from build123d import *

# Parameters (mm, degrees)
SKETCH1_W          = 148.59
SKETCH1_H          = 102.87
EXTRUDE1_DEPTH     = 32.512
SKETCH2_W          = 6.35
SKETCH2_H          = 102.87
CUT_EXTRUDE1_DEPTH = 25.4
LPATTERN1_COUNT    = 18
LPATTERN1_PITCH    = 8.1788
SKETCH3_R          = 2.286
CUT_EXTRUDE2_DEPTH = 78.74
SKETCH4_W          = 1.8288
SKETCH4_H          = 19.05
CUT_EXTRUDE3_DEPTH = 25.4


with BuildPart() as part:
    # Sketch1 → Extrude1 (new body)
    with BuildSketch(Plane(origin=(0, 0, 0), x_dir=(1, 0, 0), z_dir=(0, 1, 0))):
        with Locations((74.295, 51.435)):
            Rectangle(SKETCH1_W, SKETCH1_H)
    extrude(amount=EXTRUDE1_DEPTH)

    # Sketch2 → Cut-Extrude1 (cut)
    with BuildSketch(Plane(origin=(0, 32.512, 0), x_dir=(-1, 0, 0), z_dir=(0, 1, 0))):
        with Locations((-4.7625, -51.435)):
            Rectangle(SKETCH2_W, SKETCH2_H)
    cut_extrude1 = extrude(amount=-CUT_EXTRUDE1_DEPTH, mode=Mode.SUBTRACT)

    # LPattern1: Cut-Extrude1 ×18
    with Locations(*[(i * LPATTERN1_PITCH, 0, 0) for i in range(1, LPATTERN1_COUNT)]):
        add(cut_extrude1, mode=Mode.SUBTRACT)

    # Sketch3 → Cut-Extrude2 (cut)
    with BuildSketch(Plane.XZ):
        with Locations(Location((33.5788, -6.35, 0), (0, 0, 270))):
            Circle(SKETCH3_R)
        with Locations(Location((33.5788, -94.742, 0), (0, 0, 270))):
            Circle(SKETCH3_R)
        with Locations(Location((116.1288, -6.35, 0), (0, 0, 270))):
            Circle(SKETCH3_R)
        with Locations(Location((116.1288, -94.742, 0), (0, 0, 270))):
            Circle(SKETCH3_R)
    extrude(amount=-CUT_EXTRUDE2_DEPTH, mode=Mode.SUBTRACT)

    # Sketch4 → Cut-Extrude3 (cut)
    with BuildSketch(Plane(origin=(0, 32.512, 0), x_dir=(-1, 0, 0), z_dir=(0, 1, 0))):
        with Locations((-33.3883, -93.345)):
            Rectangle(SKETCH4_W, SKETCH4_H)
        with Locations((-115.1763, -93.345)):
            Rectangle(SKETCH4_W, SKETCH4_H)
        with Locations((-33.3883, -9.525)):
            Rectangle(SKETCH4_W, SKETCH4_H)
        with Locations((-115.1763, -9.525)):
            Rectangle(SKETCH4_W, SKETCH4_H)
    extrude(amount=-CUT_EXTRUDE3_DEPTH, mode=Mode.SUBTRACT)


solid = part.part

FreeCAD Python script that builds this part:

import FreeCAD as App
import Part
import Sketcher

V = App.Vector
Q = App.Units.Quantity

doc = App.newDocument("Part")
params = doc.addObject("Spreadsheet::Sheet", "Params")
for row, (alias, value) in enumerate([
    ("sketch1_width", "5.85 in"),
    ("sketch1_height", "4.05 in"),
    ("pad1_length", "1.28 in"),
    ("sketch2_width", "0.25 in"),
    ("sketch2_height", "4.05 in"),
    ("pocket1_length", "1 in"),
    ("linearpattern_pitch", "0.322 in"),
    ("sketch3_diameter", "0.18 in"),
    ("pocket2_length", "3.1 in"),
    ("sketch4_height", "0.75 in"),
    ("sketch4_width", "0.072 in"),
    ("pocket3_length", "1 in"),
], start=1):
    params.set(f"A{row}", alias)
    params.set(f"B{row}", "=" + value)
    params.setAlias(f"B{row}", alias)

body = doc.addObject("PartDesign::Body", "Body")

sketch1 = doc.addObject("Sketcher::SketchObject", "Sketch")
body.addObject(sketch1)
sketch1.AttachmentSupport = (doc.XZ_Plane, [""])
sketch1.MapMode = "FlatFace"
sketch1.addGeometry(Part.LineSegment(V(0, -103, 0), V(0, 0, 0)), False)
sketch1.addGeometry(Part.LineSegment(V(0, 0, 0), V(149, 0, 0)), False)
sketch1.addGeometry(Part.LineSegment(V(149, 0, 0), V(149, -103, 0)), False)
sketch1.addGeometry(Part.LineSegment(V(149, -103, 0), V(0, -103, 0)), False)
sketch1.addConstraint(Sketcher.Constraint("Coincident", 0, 2, 1, 1))
sketch1.addConstraint(Sketcher.Constraint("Coincident", 1, 2, 2, 1))
sketch1.addConstraint(Sketcher.Constraint("Coincident", 2, 2, 3, 1))
sketch1.addConstraint(Sketcher.Constraint("Coincident", 3, 2, 0, 1))
sketch1.addConstraint(Sketcher.Constraint("Vertical", 0))
sketch1.addConstraint(Sketcher.Constraint("Horizontal", 1))
sketch1.addConstraint(Sketcher.Constraint("Vertical", 2))
sketch1.addConstraint(Sketcher.Constraint("Horizontal", 3))
sketch1.addConstraint(Sketcher.Constraint("Coincident", 0, 2, -1, 1))
sketch1.addConstraint(Sketcher.Constraint("DistanceX", 1, 1, 1, 2, Q("5.85 in")))
sketch1.addConstraint(Sketcher.Constraint("DistanceY", 0, 1, 0, 2, Q("4.05 in")))
sketch1.setExpression("Constraints[9]", "Params.sketch1_width")
sketch1.setExpression("Constraints[10]", "Params.sketch1_height")
pad1 = doc.addObject("PartDesign::Pad", "Pad")
body.addObject(pad1)
pad1.Profile = sketch1
pad1.setExpression("Length", "Params.pad1_length")
pad1.Reversed = True

sketch2 = doc.addObject("Sketcher::SketchObject", "Sketch001")
body.addObject(sketch2)
sketch2.AttachmentSupport = (doc.XZ_Plane, [""])
sketch2.MapMode = "FlatFace"
sketch2.AttachmentOffset = App.Placement(V(0, 0, -1.28 * 25.4), App.Rotation())
sketch2.addGeometry(Part.LineSegment(V(8, 0, 0), V(8, -103, 0)), False)
sketch2.addGeometry(Part.LineSegment(V(8, -103, 0), V(2, -103, 0)), False)
sketch2.addGeometry(Part.LineSegment(V(2, -103, 0), V(2, 0, 0)), False)
sketch2.addGeometry(Part.LineSegment(V(2, 0, 0), V(8, 0, 0)), False)
sketch2.addConstraint(Sketcher.Constraint("Coincident", 0, 2, 1, 1))
sketch2.addConstraint(Sketcher.Constraint("Coincident", 1, 2, 2, 1))
sketch2.addConstraint(Sketcher.Constraint("Coincident", 2, 2, 3, 1))
sketch2.addConstraint(Sketcher.Constraint("Coincident", 3, 2, 0, 1))
sketch2.addConstraint(Sketcher.Constraint("Vertical", 0))
sketch2.addConstraint(Sketcher.Constraint("Horizontal", 1))
sketch2.addConstraint(Sketcher.Constraint("Vertical", 2))
sketch2.addConstraint(Sketcher.Constraint("Horizontal", 3))
sketch2.addConstraint(Sketcher.Constraint("PointOnObject", 2, 2, -1))
sketch2.addConstraint(Sketcher.Constraint("DistanceX", 1, 2, 1, 1, Q("0.25 in")))
sketch2.addConstraint(Sketcher.Constraint("DistanceY", 0, 2, 0, 1, Q("4.05 in")))
sketch2.addConstraint(Sketcher.Constraint("DistanceX", -1, 1, 0, 2, Q("0.3125 in")))
sketch2.setExpression("Constraints[9]", "Params.sketch2_width")
sketch2.setExpression("Constraints[10]", "Params.sketch2_height")
pocket1 = doc.addObject("PartDesign::Pocket", "Pocket")
body.addObject(pocket1)
pocket1.Profile = sketch2
pocket1.setExpression("Length", "Params.pocket1_length")
pocket1.Reversed = True
doc.recompute()

linearpattern = doc.addObject("PartDesign::LinearPattern", "LinearPattern")
body.addObject(linearpattern)
linearpattern.Originals = [pocket1]
linearpattern.Direction = (doc.X_Axis, [""])
linearpattern.Mode = "offset"
linearpattern.setExpression("Offset", "Params.linearpattern_pitch")
linearpattern.Occurrences = 18
body.Tip = linearpattern

sketch3 = doc.addObject("Sketcher::SketchObject", "Sketch002")
body.addObject(sketch3)
sketch3.AttachmentSupport = (doc.XZ_Plane, [""])
sketch3.MapMode = "FlatFace"
sketch3.addGeometry(Part.Circle(V(33.6, -6.3, 0), V(0, 0, 1), 2.3), False)
sketch3.addGeometry(Part.Circle(V(33.6, -94.7, 0), V(0, 0, 1), 2.3), False)
sketch3.addGeometry(Part.Circle(V(116.1, -6.3, 0), V(0, 0, 1), 2.3), False)
sketch3.addGeometry(Part.Circle(V(116.1, -94.7, 0), V(0, 0, 1), 2.3), False)
sketch3.addConstraint(Sketcher.Constraint("Equal", 0, 1))
sketch3.addConstraint(Sketcher.Constraint("Equal", 1, 2))
sketch3.addConstraint(Sketcher.Constraint("Equal", 2, 3))
sketch3.addConstraint(Sketcher.Constraint("Horizontal", 0, 3, 2, 3))
sketch3.addConstraint(Sketcher.Constraint("Horizontal", 1, 3, 3, 3))
sketch3.addConstraint(Sketcher.Constraint("Vertical", 0, 3, 1, 3))
sketch3.addConstraint(Sketcher.Constraint("Vertical", 2, 3, 3, 3))
sketch3.addConstraint(Sketcher.Constraint("Diameter", 0, Q("0.18 in")))
sketch3.addConstraint(Sketcher.Constraint("DistanceY", 0, 3, -1, 1, Q("0.25 in")))
sketch3.addConstraint(Sketcher.Constraint("DistanceY", 1, 3, -1, 1, Q("3.73 in")))
sketch3.addConstraint(Sketcher.Constraint("DistanceX", 0, 3, 2, 3, Q("3.25 in")))
sketch3.addConstraint(Sketcher.Constraint("DistanceX", -1, 1, 0, 3, Q("1.322 in")))
sketch3.setExpression("Constraints[7]", "Params.sketch3_diameter")
pocket2 = doc.addObject("PartDesign::Pocket", "Pocket001")
body.addObject(pocket2)
pocket2.Profile = sketch3
pocket2.setExpression("Length", "Params.pocket2_length")

sketch4 = doc.addObject("Sketcher::SketchObject", "Sketch003")
body.addObject(sketch4)
sketch4.AttachmentSupport = (doc.XZ_Plane, [""])
sketch4.MapMode = "FlatFace"
sketch4.AttachmentOffset = App.Placement(V(0, 0, -1.28 * 25.4), App.Rotation())
sketch4.addGeometry(Part.LineSegment(V(34.3, -83.8, 0), V(34.3, -102.9, 0)), False)
sketch4.addGeometry(Part.LineSegment(V(34.3, -102.9, 0), V(32.5, -102.9, 0)), False)
sketch4.addGeometry(Part.LineSegment(V(32.5, -102.9, 0), V(32.5, -83.8, 0)), False)
sketch4.addGeometry(Part.LineSegment(V(32.5, -83.8, 0), V(34.3, -83.8, 0)), False)
sketch4.addGeometry(Part.LineSegment(V(116.1, -83.8, 0), V(116.1, -102.9, 0)), False)
sketch4.addGeometry(Part.LineSegment(V(116.1, -102.9, 0), V(114.3, -102.9, 0)), False)
sketch4.addGeometry(Part.LineSegment(V(114.3, -102.9, 0), V(114.3, -83.8, 0)), False)
sketch4.addGeometry(Part.LineSegment(V(114.3, -83.8, 0), V(116.1, -83.8, 0)), False)
sketch4.addGeometry(Part.LineSegment(V(34.3, 0, 0), V(34.3, -19.1, 0)), False)
sketch4.addGeometry(Part.LineSegment(V(34.3, -19.1, 0), V(32.5, -19.1, 0)), False)
sketch4.addGeometry(Part.LineSegment(V(32.5, -19.1, 0), V(32.5, 0, 0)), False)
sketch4.addGeometry(Part.LineSegment(V(32.5, 0, 0), V(34.3, 0, 0)), False)
sketch4.addGeometry(Part.LineSegment(V(116.1, 0, 0), V(116.1, -19.1, 0)), False)
sketch4.addGeometry(Part.LineSegment(V(116.1, -19.1, 0), V(114.3, -19.1, 0)), False)
sketch4.addGeometry(Part.LineSegment(V(114.3, -19.1, 0), V(114.3, 0, 0)), False)
sketch4.addGeometry(Part.LineSegment(V(114.3, 0, 0), V(116.1, 0, 0)), False)
sketch4.addConstraint(Sketcher.Constraint("Coincident", 0, 2, 1, 1))
sketch4.addConstraint(Sketcher.Constraint("Coincident", 1, 2, 2, 1))
sketch4.addConstraint(Sketcher.Constraint("Coincident", 2, 2, 3, 1))
sketch4.addConstraint(Sketcher.Constraint("Coincident", 3, 2, 0, 1))
sketch4.addConstraint(Sketcher.Constraint("Coincident", 4, 2, 5, 1))
sketch4.addConstraint(Sketcher.Constraint("Coincident", 5, 2, 6, 1))
sketch4.addConstraint(Sketcher.Constraint("Coincident", 6, 2, 7, 1))
sketch4.addConstraint(Sketcher.Constraint("Coincident", 7, 2, 4, 1))
sketch4.addConstraint(Sketcher.Constraint("Coincident", 8, 2, 9, 1))
sketch4.addConstraint(Sketcher.Constraint("Coincident", 9, 2, 10, 1))
sketch4.addConstraint(Sketcher.Constraint("Coincident", 10, 2, 11, 1))
sketch4.addConstraint(Sketcher.Constraint("Coincident", 11, 2, 8, 1))
sketch4.addConstraint(Sketcher.Constraint("Coincident", 12, 2, 13, 1))
sketch4.addConstraint(Sketcher.Constraint("Coincident", 13, 2, 14, 1))
sketch4.addConstraint(Sketcher.Constraint("Coincident", 14, 2, 15, 1))
sketch4.addConstraint(Sketcher.Constraint("Coincident", 15, 2, 12, 1))
sketch4.addConstraint(Sketcher.Constraint("Vertical", 0))
sketch4.addConstraint(Sketcher.Constraint("Horizontal", 1))
sketch4.addConstraint(Sketcher.Constraint("Vertical", 2))
sketch4.addConstraint(Sketcher.Constraint("Horizontal", 3))
sketch4.addConstraint(Sketcher.Constraint("Vertical", 4))
sketch4.addConstraint(Sketcher.Constraint("Horizontal", 5))
sketch4.addConstraint(Sketcher.Constraint("Vertical", 6))
sketch4.addConstraint(Sketcher.Constraint("Horizontal", 7))
sketch4.addConstraint(Sketcher.Constraint("Vertical", 8))
sketch4.addConstraint(Sketcher.Constraint("Horizontal", 9))
sketch4.addConstraint(Sketcher.Constraint("Vertical", 10))
sketch4.addConstraint(Sketcher.Constraint("Horizontal", 11))
sketch4.addConstraint(Sketcher.Constraint("Vertical", 12))
sketch4.addConstraint(Sketcher.Constraint("Horizontal", 13))
sketch4.addConstraint(Sketcher.Constraint("Vertical", 14))
sketch4.addConstraint(Sketcher.Constraint("Horizontal", 15))
sketch4.addConstraint(Sketcher.Constraint("PointOnObject", 10, 2, -1))
sketch4.addConstraint(Sketcher.Constraint("PointOnObject", 14, 2, -1))
sketch4.addConstraint(Sketcher.Constraint("Horizontal", 1, 2, 4, 2))
sketch4.addConstraint(Sketcher.Constraint("Horizontal", 3, 2, 6, 2))
sketch4.addConstraint(Sketcher.Constraint("Horizontal", 9, 2, 12, 2))
sketch4.addConstraint(Sketcher.Constraint("Vertical", 3, 2, 8, 2))
sketch4.addConstraint(Sketcher.Constraint("Vertical", 2, 2, 9, 2))
sketch4.addConstraint(Sketcher.Constraint("Vertical", 7, 2, 12, 2))
sketch4.addConstraint(Sketcher.Constraint("Vertical", 6, 2, 13, 2))
sketch4.addConstraint(Sketcher.Constraint("Equal", 3, 5))
sketch4.addConstraint(Sketcher.Constraint("Equal", 6, 8))
sketch4.addConstraint(Sketcher.Constraint("DistanceY", 0, 2, 0, 1, Q("0.75 in")))
sketch4.addConstraint(Sketcher.Constraint("DistanceY", 2, 2, -1, 1, Q("3.3 in")))
sketch4.addConstraint(Sketcher.Constraint("DistanceX", 1, 2, 1, 1, Q("0.072 in")))
sketch4.addConstraint(Sketcher.Constraint("DistanceX", 0, 2, 4, 2, Q("3.22 in")))
sketch4.addConstraint(Sketcher.Constraint("DistanceX", -1, 1, 0, 2, Q("1.3505 in")))
sketch4.setExpression("Constraints[43]", "Params.sketch4_height")
sketch4.setExpression("Constraints[45]", "Params.sketch4_width")
pocket3 = doc.addObject("PartDesign::Pocket", "Pocket002")
body.addObject(pocket3)
pocket3.Profile = sketch4
pocket3.setExpression("Length", "Params.pocket3_length")
pocket3.Reversed = True

doc.recompute()
